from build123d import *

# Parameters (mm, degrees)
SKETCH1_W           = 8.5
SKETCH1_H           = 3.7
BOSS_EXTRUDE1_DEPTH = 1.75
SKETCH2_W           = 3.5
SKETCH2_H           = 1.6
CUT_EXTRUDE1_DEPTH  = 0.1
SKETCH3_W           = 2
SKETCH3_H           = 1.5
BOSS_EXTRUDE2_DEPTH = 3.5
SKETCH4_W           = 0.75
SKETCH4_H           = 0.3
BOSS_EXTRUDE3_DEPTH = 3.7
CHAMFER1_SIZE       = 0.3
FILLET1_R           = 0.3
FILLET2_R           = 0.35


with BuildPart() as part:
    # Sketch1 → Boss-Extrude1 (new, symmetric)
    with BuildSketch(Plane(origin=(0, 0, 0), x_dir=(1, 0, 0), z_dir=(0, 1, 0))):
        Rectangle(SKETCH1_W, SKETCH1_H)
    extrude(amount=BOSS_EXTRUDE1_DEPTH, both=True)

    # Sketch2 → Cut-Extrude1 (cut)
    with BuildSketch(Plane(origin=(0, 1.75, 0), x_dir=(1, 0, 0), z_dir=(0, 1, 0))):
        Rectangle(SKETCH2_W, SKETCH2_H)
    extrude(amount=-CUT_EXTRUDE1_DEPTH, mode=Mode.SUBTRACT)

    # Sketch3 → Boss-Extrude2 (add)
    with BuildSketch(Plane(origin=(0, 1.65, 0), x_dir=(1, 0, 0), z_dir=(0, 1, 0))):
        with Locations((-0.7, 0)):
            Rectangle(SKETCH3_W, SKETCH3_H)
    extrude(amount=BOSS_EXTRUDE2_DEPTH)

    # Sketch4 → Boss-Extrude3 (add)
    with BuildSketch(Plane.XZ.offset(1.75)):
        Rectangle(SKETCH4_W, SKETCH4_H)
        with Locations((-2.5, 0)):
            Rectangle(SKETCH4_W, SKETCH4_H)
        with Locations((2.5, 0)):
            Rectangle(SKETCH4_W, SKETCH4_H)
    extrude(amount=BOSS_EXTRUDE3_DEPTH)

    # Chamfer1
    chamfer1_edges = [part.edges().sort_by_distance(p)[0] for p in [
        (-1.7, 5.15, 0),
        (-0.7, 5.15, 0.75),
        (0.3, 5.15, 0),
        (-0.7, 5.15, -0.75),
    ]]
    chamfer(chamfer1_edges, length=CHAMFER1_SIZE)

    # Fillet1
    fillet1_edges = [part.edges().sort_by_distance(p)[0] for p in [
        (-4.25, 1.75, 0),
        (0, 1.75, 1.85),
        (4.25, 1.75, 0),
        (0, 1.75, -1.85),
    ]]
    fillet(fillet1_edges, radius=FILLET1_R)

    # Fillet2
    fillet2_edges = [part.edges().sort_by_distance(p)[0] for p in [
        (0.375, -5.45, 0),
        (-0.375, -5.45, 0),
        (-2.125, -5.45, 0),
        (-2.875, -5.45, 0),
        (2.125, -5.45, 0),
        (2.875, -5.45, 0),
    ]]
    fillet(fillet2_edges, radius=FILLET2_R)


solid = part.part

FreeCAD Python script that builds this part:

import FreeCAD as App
import Part
import Sketcher
Q = App.Units.Quantity


def edges_at(feature, points):
    """Names of the edges that pass closest to the given points."""
    edges = feature.Shape.Edges
    near = lambda p: min(range(len(edges)), key=lambda i: edges[i].distToShape(Part.Vertex(*p))[0])
    return sorted({f"Edge{near(p) + 1}" for p in points})

doc = App.newDocument("Part")
params = doc.addObject("Spreadsheet::Sheet", "Params")
for row, (alias, value) in enumerate([
    ("sketch1_width", "8.5 mm"),
    ("sketch1_height", "3.7 mm"),
    ("pad1_length", "3.5 mm"),
    ("sketch2_width", "3.5 mm"),
    ("sketch2_height", "1.6 mm"),
    ("pocket1_length", "0.1 mm"),
    ("sketch3_width", "2 mm"),
    ("sketch3_height", "1.5 mm"),
    ("pad2_length", "3.5 mm"),
    ("sketch4_height", "0.3 mm"),
    ("sketch4_width", "0.75 mm"),
    ("pad3_length", "3.7 mm"),
    ("chamfer_size", "0.3 mm"),
    ("fillet_radius", "0.3 mm"),
    ("fillet2_radius", "0.35 mm"),
], start=1):
    params.set(f"A{row}", alias)
    params.set(f"B{row}", "=" + value)
    params.setAlias(f"B{row}", alias)

body = doc.addObject("PartDesign::Body", "Body")

sketch1 = body.newObject("Sketcher::SketchObject", "Sketch")
sketch1.AttachmentSupport = (doc.getObject("XZ_Plane"), [""])
sketch1.MapMode = "FlatFace"
sketch1.addGeometry([
    Part.LineSegment(App.Vector(-4.2, -1.9, 0), App.Vector(-4.2, 1.9, 0)),
    Part.LineSegment(App.Vector(-4.2, 1.9, 0), App.Vector(4.2, 1.9, 0)),
    Part.LineSegment(App.Vector(4.2, 1.9, 0), App.Vector(4.2, -1.9, 0)),
    Part.LineSegment(App.Vector(4.2, -1.9, 0), App.Vector(-4.2, -1.9, 0)),
], False)
sketch1.addConstraint([
    Sketcher.Constraint("Coincident", 0, 2, 1, 1),
    Sketcher.Constraint("Coincident", 1, 2, 2, 1),
    Sketcher.Constraint("Coincident", 2, 2, 3, 1),
    Sketcher.Constraint("Coincident", 3, 2, 0, 1),
    Sketcher.Constraint("Vertical", 0),
    Sketcher.Constraint("Horizontal", 1),
    Sketcher.Constraint("Vertical", 2),
    Sketcher.Constraint("Horizontal", 3),
    Sketcher.Constraint("Symmetric", 0, 2, 2, 2, -1, 1),
    Sketcher.Constraint("DistanceX", 1, 1, 1, 2, Q("8.5 mm")),
    Sketcher.Constraint("DistanceY", 0, 1, 0, 2, Q("3.7 mm")),
])
sketch1.setExpression("Constraints[9]", "Params.sketch1_width")
sketch1.setExpression("Constraints[10]", "Params.sketch1_height")
pad1 = body.newObject("PartDesign::Pad", "Pad")
pad1.Profile = sketch1
pad1.setExpression("Length", "Params.pad1_length")
pad1.Midplane = True

sketch2 = body.newObject("Sketcher::SketchObject", "Sketch001")
sketch2.AttachmentSupport = (doc.getObject("XZ_Plane"), [""])
sketch2.MapMode = "FlatFace"
sketch2.AttachmentOffset = App.Placement(App.Vector(0, 0, -1.75), App.Rotation())
sketch2.addGeometry([
    Part.LineSegment(App.Vector(-1.8, -0.8, 0), App.Vector(-1.8, 0.8, 0)),
    Part.LineSegment(App.Vector(-1.8, 0.8, 0), App.Vector(1.8, 0.8, 0)),
    Part.LineSegment(App.Vector(1.8, 0.8, 0), App.Vector(1.8, -0.8, 0)),
    Part.LineSegment(App.Vector(1.8, -0.8, 0), App.Vector(-1.8, -0.8, 0)),
], False)
sketch2.addConstraint([
    Sketcher.Constraint("Coincident", 0, 2, 1, 1),
    Sketcher.Constraint("Coincident", 1, 2, 2, 1),
    Sketcher.Constraint("Coincident", 2, 2, 3, 1),
    Sketcher.Constraint("Coincident", 3, 2, 0, 1),
    Sketcher.Constraint("Vertical", 0),
    Sketcher.Constraint("Horizontal", 1),
    Sketcher.Constraint("Vertical", 2),
    Sketcher.Constraint("Horizontal", 3),
    Sketcher.Constraint("Symmetric", 0, 2, 2, 2, -1, 1),
    Sketcher.Constraint("DistanceX", 1, 1, 1, 2, Q("3.5 mm")),
    Sketcher.Constraint("DistanceY", 0, 1, 0, 2, Q("1.6 mm")),
])
sketch2.setExpression("Constraints[9]", "Params.sketch2_width")
sketch2.setExpression("Constraints[10]", "Params.sketch2_height")
pocket1 = body.newObject("PartDesign::Pocket", "Pocket")
pocket1.Profile = sketch2
pocket1.setExpression("Length", "Params.pocket1_length")
pocket1.Reversed = True

sketch3 = body.newObject("Sketcher::SketchObject", "Sketch002")
sketch3.AttachmentSupport = (doc.getObject("XZ_Plane"), [""])
sketch3.MapMode = "FlatFace"
sketch3.AttachmentOffset = App.Placement(App.Vector(0, 0, -1.65), App.Rotation())
sketch3.addGeometry([
    Part.LineSegment(App.Vector(-1.7, -0.8, 0), App.Vector(-1.7, 0.8, 0)),
    Part.LineSegment(App.Vector(-1.7, 0.8, 0), App.Vector(0.3, 0.8, 0)),
    Part.LineSegment(App.Vector(0.3, 0.8, 0), App.Vector(0.3, -0.8, 0)),
    Part.LineSegment(App.Vector(0.3, -0.8, 0), App.Vector(-1.7, -0.8, 0)),
], False)
sketch3.addConstraint([
    Sketcher.Constraint("Coincident", 0, 2, 1, 1),
    Sketcher.Constraint("Coincident", 1, 2, 2, 1),
    Sketcher.Constraint("Coincident", 2, 2, 3, 1),
    Sketcher.Constraint("Coincident", 3, 2, 0, 1),
    Sketcher.Constraint("Vertical", 0),
    Sketcher.Constraint("Horizontal", 1),
    Sketcher.Constraint("Vertical", 2),
    Sketcher.Constraint("Horizontal", 3),
    Sketcher.Constraint("DistanceX", 1, 1, 1, 2, Q("2 mm")),
    Sketcher.Constraint("DistanceY", 0, 1, 0, 2, Q("1.5 mm")),
    Sketcher.Constraint("DistanceX", 0, 2, -1, 1, Q("1.7 mm")),
    Sketcher.Constraint("DistanceY", -1, 1, 0, 2, Q("0.75 mm")),
])
sketch3.setExpression("Constraints[8]", "Params.sketch3_width")
sketch3.setExpression("Constraints[9]", "Params.sketch3_height")
pad2 = body.newObject("PartDesign::Pad", "Pad001")
pad2.Profile = sketch3
pad2.setExpression("Length", "Params.pad2_length")
pad2.Reversed = True

sketch4 = body.newObject("Sketcher::SketchObject", "Sketch003")
sketch4.AttachmentSupport = (doc.getObject("XZ_Plane"), [""])
sketch4.MapMode = "FlatFace"
sketch4.AttachmentOffset = App.Placement(App.Vector(0, 0, 1.75), App.Rotation())
sketch4.addGeometry([
    Part.LineSegment(App.Vector(-0.38, 0.15, 0), App.Vector(-0.38, -0.15, 0)),
    Part.LineSegment(App.Vector(-0.38, -0.15, 0), App.Vector(0.38, -0.15, 0)),
    Part.LineSegment(App.Vector(0.38, -0.15, 0), App.Vector(0.38, 0.15, 0)),
    Part.LineSegment(App.Vector(0.38, 0.15, 0), App.Vector(-0.38, 0.15, 0)),
    Part.LineSegment(App.Vector(-2.88, 0.15, 0), App.Vector(-2.88, -0.15, 0)),
    Part.LineSegment(App.Vector(-2.88, -0.15, 0), App.Vector(-2.12, -0.15, 0)),
    Part.LineSegment(App.Vector(-2.12, -0.15, 0), App.Vector(-2.12, 0.15, 0)),
    Part.LineSegment(App.Vector(-2.12, 0.15, 0), App.Vector(-2.88, 0.15, 0)),
    Part.LineSegment(App.Vector(2.12, 0.15, 0), App.Vector(2.12, -0.15, 0)),
    Part.LineSegment(App.Vector(2.12, -0.15, 0), App.Vector(2.88, -0.15, 0)),
    Part.LineSegment(App.Vector(2.88, -0.15, 0), App.Vector(2.88, 0.15, 0)),
    Part.LineSegment(App.Vector(2.88, 0.15, 0), App.Vector(2.12, 0.15, 0)),
], False)
sketch4.addConstraint([
    Sketcher.Constraint("Coincident", 0, 2, 1, 1),
    Sketcher.Constraint("Coincident", 1, 2, 2, 1),
    Sketcher.Constraint("Coincident", 2, 2, 3, 1),
    Sketcher.Constraint("Coincident", 3, 2, 0, 1),
    Sketcher.Constraint("Coincident", 4, 2, 5, 1),
    Sketcher.Constraint("Coincident", 5, 2, 6, 1),
    Sketcher.Constraint("Coincident", 6, 2, 7, 1),
    Sketcher.Constraint("Coincident", 7, 2, 4, 1),
    Sketcher.Constraint("Coincident", 8, 2, 9, 1),
    Sketcher.Constraint("Coincident", 9, 2, 10, 1),
    Sketcher.Constraint("Coincident", 10, 2, 11, 1),
    Sketcher.Constraint("Coincident", 11, 2, 8, 1),
    Sketcher.Constraint("Vertical", 0),
    Sketcher.Constraint("Horizontal", 1),
    Sketcher.Constraint("Vertical", 2),
    Sketcher.Constraint("Horizontal", 3),
    Sketcher.Constraint("Vertical", 4),
    Sketcher.Constraint("Horizontal", 5),
    Sketcher.Constraint("Vertical", 6),
    Sketcher.Constraint("Horizontal", 7),
    Sketcher.Constraint("Vertical", 8),
    Sketcher.Constraint("Horizontal", 9),
    Sketcher.Constraint("Vertical", 10),
    Sketcher.Constraint("Horizontal", 11),
    Sketcher.Constraint("Symmetric", 0, 2, 2, 2, -1, 1),
    Sketcher.Constraint("Symmetric", 6, 2, 8, 2, -1, 1),
    Sketcher.Constraint("Symmetric", 4, 2, 10, 2, -1, 1),
    Sketcher.Constraint("Horizontal", 1, 2, 4, 2),
    Sketcher.Constraint("Horizontal", 3, 2, 6, 2),
    Sketcher.Constraint("Equal", 3, 5),
    Sketcher.Constraint("DistanceY", 0, 2, 0, 1, Q("0.3 mm")),
    Sketcher.Constraint("DistanceX", 1, 1, 1, 2, Q("0.75 mm")),
    Sketcher.Constraint("DistanceX", 4, 2, 0, 2, Q("2.5 mm")),
])
sketch4.setExpression("Constraints[30]", "Params.sketch4_height")
sketch4.setExpression("Constraints[31]", "Params.sketch4_width")
pad3 = body.newObject("PartDesign::Pad", "Pad002")
pad3.Profile = sketch4
pad3.setExpression("Length", "Params.pad3_length")
doc.recompute()

chamfer = body.newObject("PartDesign::Chamfer", "Chamfer")
chamfer.Base = (pad3, edges_at(pad3, [
    (-1.7, 5.15, 0),
    (-0.7, 5.15, 0.75),
    (0.3, 5.15, 0),
    (-0.7, 5.15, -0.75),
]))
chamfer.setExpression("Size", "Params.chamfer_size")
doc.recompute()

fillet = body.newObject("PartDesign::Fillet", "Fillet")
fillet.Base = (chamfer, edges_at(chamfer, [
    (-4.25, 1.75, 0),
    (0, 1.75, 1.85),
    (4.25, 1.75, 0),
    (0, 1.75, -1.85),
]))
fillet.setExpression("Radius", "Params.fillet_radius")
doc.recompute()

fillet2 = body.newObject("PartDesign::Fillet", "Fillet001")
fillet2.Base = (fillet, edges_at(fillet, [
    (0.375, -5.45, 0),
    (-0.375, -5.45, 0),
    (-2.125, -5.45, 0),
    (-2.875, -5.45, 0),
    (2.125, -5.45, 0),
    (2.875, -5.45, 0),
]))
fillet2.setExpression("Radius", "Params.fillet2_radius")

doc.recompute()
